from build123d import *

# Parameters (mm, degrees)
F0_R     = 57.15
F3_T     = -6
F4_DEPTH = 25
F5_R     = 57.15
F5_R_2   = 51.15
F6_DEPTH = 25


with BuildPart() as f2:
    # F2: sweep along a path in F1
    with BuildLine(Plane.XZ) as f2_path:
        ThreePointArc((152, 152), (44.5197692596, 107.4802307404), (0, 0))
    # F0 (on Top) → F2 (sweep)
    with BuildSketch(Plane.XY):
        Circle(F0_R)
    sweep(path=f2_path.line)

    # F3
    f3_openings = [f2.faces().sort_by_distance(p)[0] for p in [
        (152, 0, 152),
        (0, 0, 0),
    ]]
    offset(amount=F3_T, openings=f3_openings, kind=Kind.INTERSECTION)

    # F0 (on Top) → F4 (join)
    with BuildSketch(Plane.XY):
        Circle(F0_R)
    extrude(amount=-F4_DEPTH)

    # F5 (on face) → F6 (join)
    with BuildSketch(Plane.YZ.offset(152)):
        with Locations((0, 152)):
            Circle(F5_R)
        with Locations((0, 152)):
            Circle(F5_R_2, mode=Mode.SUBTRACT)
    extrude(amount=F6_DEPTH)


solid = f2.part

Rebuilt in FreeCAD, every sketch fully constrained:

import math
import FreeCAD as App
import Part
import Sketcher
from FreeCAD import Vector


def faces_at(feature, points):
    """Names of the faces that lie closest to the given points."""
    faces = feature.Shape.Faces
    near = lambda p: min(range(len(faces)), key=lambda i: faces[i].distToShape(Part.Vertex(*p))[0])
    return sorted({f"Face{near(p) + 1}" for p in points})

doc = App.newDocument("Part")
body = doc.addObject("PartDesign::Body", "Body")

# Sketch on XY plane
sketch1 = body.newObject("Sketcher::SketchObject", "Sketch")
sketch1.AttachmentSupport = (doc.getObject("XY_Plane"), [""])
sketch1.MapMode = "FlatFace"
sketch1.addGeometry(Part.Circle(Vector(0, 0, 0), Vector(0, 0, 1), 57), False)
sketch1.addConstraint([
    Sketcher.Constraint("Coincident", 0, 3, -1, 1),
    Sketcher.Constraint("Diameter", 0, 114.3),
])

# Sketch on XZ plane
sketch2 = body.newObject("Sketcher::SketchObject", "Sketch001")
sketch2.AttachmentSupport = (doc.getObject("XZ_Plane"), [""])
sketch2.MapMode = "FlatFace"
sketch2.addGeometry(Part.ArcOfCircle(Part.Circle(Vector(152, 0, 0), Vector(0, 0, 1), 152), math.radians(90), math.radians(180)), False)
sketch2.addConstraint([
    Sketcher.Constraint("Coincident", 0, 2, -1, 1),
    Sketcher.Constraint("PointOnObject", 0, 3, -1),
    Sketcher.Constraint("Radius", 0, 152.0),
    Sketcher.Constraint("DistanceX", -1, 1, 0, 1, 152.0),
])
doc.recompute()

additivepipe = body.newObject("PartDesign::AdditivePipe", "AdditivePipe")
additivepipe.Profile = sketch1
additivepipe.Spine = (sketch2, ["Edge1"])
doc.recompute()

thickness = body.newObject("PartDesign::Thickness", "Thickness")
thickness.Base = (additivepipe, faces_at(additivepipe, [(152, 0, 152), (0, 0, 0)]))
thickness.Value = 6
thickness.Reversed = True
thickness.Join = "Intersection"

# Sketch on XY plane
sketch3 = body.newObject("Sketcher::SketchObject", "Sketch002")
sketch3.AttachmentSupport = (doc.getObject("XY_Plane"), [""])
sketch3.MapMode = "FlatFace"
sketch3.addGeometry(Part.Circle(Vector(0, 0, 0), Vector(0, 0, 1), 57), False)
sketch3.addConstraint([
    Sketcher.Constraint("Coincident", 0, 3, -1, 1),
    Sketcher.Constraint("Diameter", 0, 114.3),
])
pad1 = body.newObject("PartDesign::Pad", "Pad")
pad1.Profile = sketch3
pad1.Length = 25
pad1.Reversed = True

# Sketch on YZ plane
sketch4 = body.newObject("Sketcher::SketchObject", "Sketch003")
sketch4.AttachmentSupport = (doc.getObject("YZ_Plane"), [""])
sketch4.MapMode = "FlatFace"
sketch4.AttachmentOffset = App.Placement(Vector(0, 0, 152), App.Rotation())
sketch4.addGeometry([
    Part.Circle(Vector(0, 152, 0), Vector(0, 0, 1), 57),
    Part.Circle(Vector(0, 152, 0), Vector(0, 0, 1), 51),
], False)
sketch4.addConstraint([
    Sketcher.Constraint("Coincident", 1, 3, 0, 3),
    Sketcher.Constraint("PointOnObject", 0, 3, -2),
    Sketcher.Constraint("Diameter", 0, 114.3),
    Sketcher.Constraint("Diameter", 1, 102.3),
    Sketcher.Constraint("DistanceY", -1, 1, 0, 3, 152.0),
])
pad2 = body.newObject("PartDesign::Pad", "Pad001")
pad2.Profile = sketch4
pad2.Length = 25

doc.recompute()
